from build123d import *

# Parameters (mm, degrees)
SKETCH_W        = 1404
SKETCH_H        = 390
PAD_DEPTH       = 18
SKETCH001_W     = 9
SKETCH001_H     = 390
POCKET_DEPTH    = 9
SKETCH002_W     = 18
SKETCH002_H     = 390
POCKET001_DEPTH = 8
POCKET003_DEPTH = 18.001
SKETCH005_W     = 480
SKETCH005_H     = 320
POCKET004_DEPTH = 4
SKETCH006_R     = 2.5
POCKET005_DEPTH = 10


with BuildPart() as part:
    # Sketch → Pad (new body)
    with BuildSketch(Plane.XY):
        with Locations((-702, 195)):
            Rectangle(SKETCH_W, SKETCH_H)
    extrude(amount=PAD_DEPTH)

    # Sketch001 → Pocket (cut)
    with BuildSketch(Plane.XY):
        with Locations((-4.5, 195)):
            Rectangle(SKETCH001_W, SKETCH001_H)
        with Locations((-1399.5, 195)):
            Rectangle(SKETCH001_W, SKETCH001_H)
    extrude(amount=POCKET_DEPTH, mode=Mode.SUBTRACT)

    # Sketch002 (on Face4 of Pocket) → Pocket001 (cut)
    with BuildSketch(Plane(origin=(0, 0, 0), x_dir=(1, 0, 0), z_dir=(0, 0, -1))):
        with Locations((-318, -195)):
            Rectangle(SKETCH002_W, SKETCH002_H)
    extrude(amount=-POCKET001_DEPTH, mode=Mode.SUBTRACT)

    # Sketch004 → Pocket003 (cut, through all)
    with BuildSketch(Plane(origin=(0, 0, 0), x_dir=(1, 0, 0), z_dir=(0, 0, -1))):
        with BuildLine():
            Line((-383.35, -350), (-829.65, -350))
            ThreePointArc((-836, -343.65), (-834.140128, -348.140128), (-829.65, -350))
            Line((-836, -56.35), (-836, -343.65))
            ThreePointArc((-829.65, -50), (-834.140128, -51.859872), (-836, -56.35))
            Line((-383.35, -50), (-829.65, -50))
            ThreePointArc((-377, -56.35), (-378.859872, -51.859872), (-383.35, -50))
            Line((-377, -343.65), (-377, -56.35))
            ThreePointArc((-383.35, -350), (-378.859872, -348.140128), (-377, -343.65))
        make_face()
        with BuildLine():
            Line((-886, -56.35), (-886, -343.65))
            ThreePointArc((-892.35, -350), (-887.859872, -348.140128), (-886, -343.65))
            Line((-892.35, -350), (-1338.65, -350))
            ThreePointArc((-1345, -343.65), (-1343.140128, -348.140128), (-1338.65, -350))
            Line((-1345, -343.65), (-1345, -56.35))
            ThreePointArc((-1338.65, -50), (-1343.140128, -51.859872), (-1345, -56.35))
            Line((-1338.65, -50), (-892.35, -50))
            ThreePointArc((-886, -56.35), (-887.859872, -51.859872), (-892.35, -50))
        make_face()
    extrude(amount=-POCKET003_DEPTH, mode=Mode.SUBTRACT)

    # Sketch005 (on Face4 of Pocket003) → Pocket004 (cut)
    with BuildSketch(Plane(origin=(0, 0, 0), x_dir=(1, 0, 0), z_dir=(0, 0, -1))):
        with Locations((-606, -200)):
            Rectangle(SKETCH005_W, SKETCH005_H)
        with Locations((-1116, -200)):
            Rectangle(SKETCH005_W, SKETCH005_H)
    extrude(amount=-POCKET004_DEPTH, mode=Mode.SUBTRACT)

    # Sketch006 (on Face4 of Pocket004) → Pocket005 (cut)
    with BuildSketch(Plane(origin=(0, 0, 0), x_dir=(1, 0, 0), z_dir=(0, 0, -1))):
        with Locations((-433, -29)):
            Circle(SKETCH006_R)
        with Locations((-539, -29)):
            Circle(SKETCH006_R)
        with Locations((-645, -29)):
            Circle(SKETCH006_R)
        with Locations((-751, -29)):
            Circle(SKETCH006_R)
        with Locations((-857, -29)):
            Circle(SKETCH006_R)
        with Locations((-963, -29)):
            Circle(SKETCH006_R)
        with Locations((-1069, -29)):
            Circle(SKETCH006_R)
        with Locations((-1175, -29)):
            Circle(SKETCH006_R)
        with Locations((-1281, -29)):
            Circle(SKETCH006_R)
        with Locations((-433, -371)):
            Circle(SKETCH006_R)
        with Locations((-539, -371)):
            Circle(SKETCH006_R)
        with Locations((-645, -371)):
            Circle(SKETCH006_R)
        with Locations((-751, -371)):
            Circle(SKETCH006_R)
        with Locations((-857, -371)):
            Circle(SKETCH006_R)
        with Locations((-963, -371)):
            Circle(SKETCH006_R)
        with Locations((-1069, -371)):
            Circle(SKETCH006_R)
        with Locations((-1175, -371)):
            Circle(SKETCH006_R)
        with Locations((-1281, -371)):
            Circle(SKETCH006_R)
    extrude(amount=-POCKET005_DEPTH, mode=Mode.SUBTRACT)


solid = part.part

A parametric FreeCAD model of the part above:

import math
import FreeCAD as App
import Part
import Sketcher

V = App.Vector
Q = App.Units.Quantity


def add_polygon(sketch, points):
    """Adds a closed chain of lines whose ends are joined by coincident constraints."""
    first, n = sketch.GeometryCount, len(points)
    for a, b in zip(points, points[1:] + points[:1]):
        sketch.addGeometry(Part.LineSegment(App.Vector(*a, 0), App.Vector(*b, 0)), False)
    for i in range(n):
        sketch.addConstraint(Sketcher.Constraint("Coincident", first + i, 2, first + (i + 1) % n, 1))

doc = App.newDocument("Part")
params = doc.addObject("Spreadsheet::Sheet", "Params")
for row, (alias, value) in enumerate([
    ("sketch1_width", "1404 mm"),
    ("sketch1_height", "390 mm"),
    ("pad1_length", "18 mm"),
    ("sketch2_width", "9 mm"),
    ("sketch2_height", "390 mm"),
    ("pocket1_length", "9 mm"),
    ("sketch3_width", "18 mm"),
    ("sketch3_height", "390 mm"),
    ("pocket2_length", "8 mm"),
    ("sketch4_radius", "6.35 mm"),
    ("sketch4_width", "446.3 mm"),
    ("sketch4_height", "287.3 mm"),
    ("sketch5_width", "480 mm"),
    ("sketch5_height", "320 mm"),
    ("pocket4_length", "4 mm"),
    ("sketch6_diameter", "5 mm"),
    ("pocket5_length", "10 mm"),
], start=1):
    params.set(f"A{row}", alias)
    params.set(f"B{row}", "=" + value)
    params.setAlias(f"B{row}", alias)

body = doc.addObject("PartDesign::Body", "Body")

sketch1 = doc.addObject("Sketcher::SketchObject", "Sketch")
body.addObject(sketch1)
sketch1.AttachmentSupport = (doc.XY_Plane, [""])
sketch1.MapMode = "FlatFace"
add_polygon(sketch1, [(-1404, 390), (-1404, 0), (0, 0), (0, 390)])
sketch1.addConstraint([
    Sketcher.Constraint("Vertical", 0),
    Sketcher.Constraint("Horizontal", 1),
    Sketcher.Constraint("Vertical", 2),
    Sketcher.Constraint("Horizontal", 3),
    Sketcher.Constraint("Coincident", 1, 2, -1, 1),
    Sketcher.Constraint("DistanceX", 1, 1, 1, 2, Q("1404 mm")),
    Sketcher.Constraint("DistanceY", 0, 2, 0, 1, Q("390 mm")),
])
sketch1.setExpression("Constraints[9]", "Params.sketch1_width")
sketch1.setExpression("Constraints[10]", "Params.sketch1_height")
pad1 = doc.addObject("PartDesign::Pad", "Pad")
body.addObject(pad1)
pad1.Profile = sketch1
pad1.setExpression("Length", "Params.pad1_length")

sketch2 = doc.addObject("Sketcher::SketchObject", "Sketch001")
body.addObject(sketch2)
sketch2.AttachmentSupport = (doc.XY_Plane, [""])
sketch2.MapMode = "FlatFace"
add_polygon(sketch2, [(-9, 390), (-9, 0), (0, 0), (0, 390)])
add_polygon(sketch2, [(-1404, 390), (-1404, 0), (-1395, 0), (-1395, 390)])
sketch2.addConstraint([
    Sketcher.Constraint("Vertical", 0),
    Sketcher.Constraint("Horizontal", 1),
    Sketcher.Constraint("Vertical", 2),
    Sketcher.Constraint("Horizontal", 3),
    Sketcher.Constraint("Vertical", 4),
    Sketcher.Constraint("Horizontal", 5),
    Sketcher.Constraint("Vertical", 6),
    Sketcher.Constraint("Horizontal", 7),
    Sketcher.Constraint("Coincident", 1, 2, -1, 1),
    Sketcher.Constraint("PointOnObject", 4, 2, -1),
    Sketcher.Constraint("Horizontal", 3, 2, 6, 2),
    Sketcher.Constraint("Equal", 3, 5),
    Sketcher.Constraint("DistanceX", 1, 1, 1, 2, Q("9 mm")),
    Sketcher.Constraint("DistanceY", 0, 2, 0, 1, Q("390 mm")),
    Sketcher.Constraint("DistanceX", 4, 2, -1, 1, Q("1404 mm")),
])
sketch2.setExpression("Constraints[20]", "Params.sketch2_width")
sketch2.setExpression("Constraints[21]", "Params.sketch2_height")
pocket1 = doc.addObject("PartDesign::Pocket", "Pocket")
body.addObject(pocket1)
pocket1.Profile = sketch2
pocket1.setExpression("Length", "Params.pocket1_length")
pocket1.Reversed = True

sketch3 = doc.addObject("Sketcher::SketchObject", "Sketch002")
body.addObject(sketch3)
sketch3.AttachmentSupport = (doc.XY_Plane, [""])
sketch3.MapMode = "FlatFace"
add_polygon(sketch3, [(-327, 0), (-327, 390), (-309, 390), (-309, 0)])
sketch3.addConstraint([
    Sketcher.Constraint("Vertical", 0),
    Sketcher.Constraint("Horizontal", 1),
    Sketcher.Constraint("Vertical", 2),
    Sketcher.Constraint("Horizontal", 3),
    Sketcher.Constraint("PointOnObject", 2, 2, -1),
    Sketcher.Constraint("DistanceX", 1, 1, 1, 2, Q("18 mm")),
    Sketcher.Constraint("DistanceY", 0, 1, 0, 2, Q("390 mm")),
    Sketcher.Constraint("DistanceX", 0, 2, -1, 1, Q("327 mm")),
])
sketch3.setExpression("Constraints[9]", "Params.sketch3_width")
sketch3.setExpression("Constraints[10]", "Params.sketch3_height")
pocket2 = doc.addObject("PartDesign::Pocket", "Pocket001")
body.addObject(pocket2)
pocket2.Profile = sketch3
pocket2.setExpression("Length", "Params.pocket2_length")
pocket2.Reversed = True

sketch4 = doc.addObject("Sketcher::SketchObject", "Sketch003")
body.addObject(sketch4)
sketch4.AttachmentSupport = (doc.XY_Plane, [""])
sketch4.MapMode = "FlatFace"
sketch4.addGeometry([
    Part.LineSegment(V(-830, 350, 0), V(-383, 350, 0)),
    Part.ArcOfCircle(Part.Circle(V(-383, 344, 0), V(0, 0, 1), 6), math.radians(0), math.radians(90)),
    Part.LineSegment(V(-377, 344, 0), V(-377, 56, 0)),
    Part.ArcOfCircle(Part.Circle(V(-383, 56, 0), V(0, 0, 1), 6), math.radians(-90), math.radians(0)),
    Part.LineSegment(V(-383, 50, 0), V(-830, 50, 0)),
    Part.ArcOfCircle(Part.Circle(V(-830, 56, 0), V(0, 0, 1), 6), math.radians(-180), math.radians(-90)),
    Part.LineSegment(V(-836, 56, 0), V(-836, 344, 0)),
    Part.ArcOfCircle(Part.Circle(V(-830, 344, 0), V(0, 0, 1), 6), math.radians(90), math.radians(180)),
    Part.LineSegment(V(-886, 344, 0), V(-886, 56, 0)),
    Part.ArcOfCircle(Part.Circle(V(-892, 56, 0), V(0, 0, 1), 6), math.radians(-90), math.radians(0)),
    Part.LineSegment(V(-892, 50, 0), V(-1339, 50, 0)),
    Part.ArcOfCircle(Part.Circle(V(-1339, 56, 0), V(0, 0, 1), 6), math.radians(-180), math.radians(-90)),
    Part.LineSegment(V(-1345, 56, 0), V(-1345, 344, 0)),
    Part.ArcOfCircle(Part.Circle(V(-1339, 344, 0), V(0, 0, 1), 6), math.radians(90), math.radians(180)),
    Part.LineSegment(V(-1339, 350, 0), V(-892, 350, 0)),
    Part.ArcOfCircle(Part.Circle(V(-892, 344, 0), V(0, 0, 1), 6), math.radians(0), math.radians(90)),
], False)
sketch4.addConstraint([
    Sketcher.Constraint("Tangent", 0, 2, 1, 2),
    Sketcher.Constraint("Tangent", 1, 1, 2, 1),
    Sketcher.Constraint("Tangent", 2, 2, 3, 2),
    Sketcher.Constraint("Tangent", 3, 1, 4, 1),
    Sketcher.Constraint("Tangent", 4, 2, 5, 2),
    Sketcher.Constraint("Tangent", 5, 1, 6, 1),
    Sketcher.Constraint("Tangent", 6, 2, 7, 2),
    Sketcher.Constraint("Tangent", 7, 1, 0, 1),
    Sketcher.Constraint("Tangent", 8, 2, 9, 2),
    Sketcher.Constraint("Tangent", 9, 1, 10, 1),
    Sketcher.Constraint("Tangent", 10, 2, 11, 2),
    Sketcher.Constraint("Tangent", 11, 1, 12, 1),
    Sketcher.Constraint("Tangent", 12, 2, 13, 2),
    Sketcher.Constraint("Tangent", 13, 1, 14, 1),
    Sketcher.Constraint("Tangent", 14, 2, 15, 2),
    Sketcher.Constraint("Tangent", 15, 1, 8, 1),
    Sketcher.Constraint("Horizontal", 0),
    Sketcher.Constraint("Vertical", 2),
    Sketcher.Constraint("Horizontal", 4),
    Sketcher.Constraint("Vertical", 6),
    Sketcher.Constraint("Vertical", 8),
    Sketcher.Constraint("Horizontal", 10),
    Sketcher.Constraint("Vertical", 12),
    Sketcher.Constraint("Horizontal", 14),
    Sketcher.Constraint("Equal", 1, 3),
    Sketcher.Constraint("Equal", 3, 5),
    Sketcher.Constraint("Equal", 5, 7),
    Sketcher.Constraint("Equal", 7, 9),
    Sketcher.Constraint("Equal", 9, 11),
    Sketcher.Constraint("Equal", 11, 13),
    Sketcher.Constraint("Equal", 13, 15),
    Sketcher.Constraint("Horizontal", 5, 3, 9, 3),
    Sketcher.Constraint("Horizontal", 7, 3, 13, 3),
    Sketcher.Constraint("Equal", 4, 10),
    Sketcher.Constraint("Radius", 1, Q("6.35 mm")),
    Sketcher.Constraint("DistanceX", 0, 1, 0, 2, Q("446.3 mm")),
    Sketcher.Constraint("DistanceY", 2, 2, 2, 1, Q("287.3 mm")),
    Sketcher.Constraint("DistanceY", -1, 1, 0, 2, Q("350 mm")),
    Sketcher.Constraint("DistanceX", 1, 1, -1, 1, Q("377 mm")),
    Sketcher.Constraint("DistanceX", 8, 2, -1, 1, Q("886 mm")),
])
sketch4.setExpression("Constraints[34]", "Params.sketch4_radius")
sketch4.setExpression("Constraints[35]", "Params.sketch4_width")
sketch4.setExpression("Constraints[36]", "Params.sketch4_height")
pocket3 = doc.addObject("PartDesign::Pocket", "Pocket002")
body.addObject(pocket3)
pocket3.Profile = sketch4
pocket3.Type = "ThroughAll"
pocket3.Reversed = True

sketch5 = doc.addObject("Sketcher::SketchObject", "Sketch004")
body.addObject(sketch5)
sketch5.AttachmentSupport = (doc.XY_Plane, [""])
sketch5.MapMode = "FlatFace"
add_polygon(sketch5, [(-846, 40), (-846, 360), (-366, 360), (-366, 40)])
add_polygon(sketch5, [(-1356, 40), (-1356, 360), (-876, 360), (-876, 40)])
sketch5.addConstraint([
    Sketcher.Constraint("Vertical", 0),
    Sketcher.Constraint("Horizontal", 1),
    Sketcher.Constraint("Vertical", 2),
    Sketcher.Constraint("Horizontal", 3),
    Sketcher.Constraint("Vertical", 4),
    Sketcher.Constraint("Horizontal", 5),
    Sketcher.Constraint("Vertical", 6),
    Sketcher.Constraint("Horizontal", 7),
    Sketcher.Constraint("Horizontal", 1, 2, 4, 2),
    Sketcher.Constraint("Horizontal", 3, 2, 6, 2),
    Sketcher.Constraint("Equal", 3, 5),
    Sketcher.Constraint("DistanceX", 1, 1, 1, 2, Q("480 mm")),
    Sketcher.Constraint("DistanceY", 0, 1, 0, 2, Q("320 mm")),
    Sketcher.Constraint("DistanceX", 0, 2, -1, 1, Q("846 mm")),
    Sketcher.Constraint("DistanceY", -1, 1, 0, 2, Q("360 mm")),
    Sketcher.Constraint("DistanceX", 4, 2, -1, 1, Q("1356 mm")),
])
sketch5.setExpression("Constraints[19]", "Params.sketch5_width")
sketch5.setExpression("Constraints[20]", "Params.sketch5_height")
pocket4 = doc.addObject("PartDesign::Pocket", "Pocket003")
body.addObject(pocket4)
pocket4.Profile = sketch5
pocket4.setExpression("Length", "Params.pocket4_length")
pocket4.Reversed = True

sketch6 = doc.addObject("Sketcher::SketchObject", "Sketch005")
body.addObject(sketch6)
sketch6.AttachmentSupport = (doc.XY_Plane, [""])
sketch6.MapMode = "FlatFace"
sketch6.addGeometry([
    Part.Circle(V(-433, 29, 0), V(0, 0, 1), 2.5),
    Part.Circle(V(-539, 29, 0), V(0, 0, 1), 2.5),
    Part.Circle(V(-645, 29, 0), V(0, 0, 1), 2.5),
    Part.Circle(V(-751, 29, 0), V(0, 0, 1), 2.5),
    Part.Circle(V(-857, 29, 0), V(0, 0, 1), 2.5),
    Part.Circle(V(-963, 29, 0), V(0, 0, 1), 2.5),
    Part.Circle(V(-1069, 29, 0), V(0, 0, 1), 2.5),
    Part.Circle(V(-1175, 29, 0), V(0, 0, 1), 2.5),
    Part.Circle(V(-1281, 29, 0), V(0, 0, 1), 2.5),
    Part.Circle(V(-433, 371, 0), V(0, 0, 1), 2.5),
    Part.Circle(V(-539, 371, 0), V(0, 0, 1), 2.5),
    Part.Circle(V(-645, 371, 0), V(0, 0, 1), 2.5),
    Part.Circle(V(-751, 371, 0), V(0, 0, 1), 2.5),
    Part.Circle(V(-857, 371, 0), V(0, 0, 1), 2.5),
    Part.Circle(V(-963, 371, 0), V(0, 0, 1), 2.5),
    Part.Circle(V(-1069, 371, 0), V(0, 0, 1), 2.5),
    Part.Circle(V(-1175, 371, 0), V(0, 0, 1), 2.5),
    Part.Circle(V(-1281, 371, 0), V(0, 0, 1), 2.5),
], False)
sketch6.addConstraint([
    Sketcher.Constraint("Equal", 0, 1),
    Sketcher.Constraint("Equal", 1, 2),
    Sketcher.Constraint("Equal", 2, 3),
    Sketcher.Constraint("Equal", 3, 4),
    Sketcher.Constraint("Equal", 4, 5),
    Sketcher.Constraint("Equal", 5, 6),
    Sketcher.Constraint("Equal", 6, 7),
    Sketcher.Constraint("Equal", 7, 8),
    Sketcher.Constraint("Equal", 8, 9),
    Sketcher.Constraint("Equal", 9, 10),
    Sketcher.Constraint("Equal", 10, 11),
    Sketcher.Constraint("Equal", 11, 12),
    Sketcher.Constraint("Equal", 12, 13),
    Sketcher.Constraint("Equal", 13, 14),
    Sketcher.Constraint("Equal", 14, 15),
    Sketcher.Constraint("Equal", 15, 16),
    Sketcher.Constraint("Equal", 16, 17),
    Sketcher.Constraint("Horizontal", 0, 3, 1, 3),
    Sketcher.Constraint("Horizontal", 1, 3, 2, 3),
    Sketcher.Constraint("Horizontal", 2, 3, 3, 3),
    Sketcher.Constraint("Horizontal", 3, 3, 4, 3),
    Sketcher.Constraint("Horizontal", 4, 3, 5, 3),
    Sketcher.Constraint("Horizontal", 5, 3, 6, 3),
    Sketcher.Constraint("Horizontal", 6, 3, 7, 3),
    Sketcher.Constraint("Horizontal", 7, 3, 8, 3),
    Sketcher.Constraint("Horizontal", 9, 3, 10, 3),
    Sketcher.Constraint("Horizontal", 10, 3, 11, 3),
    Sketcher.Constraint("Horizontal", 11, 3, 12, 3),
    Sketcher.Constraint("Horizontal", 12, 3, 13, 3),
    Sketcher.Constraint("Horizontal", 13, 3, 14, 3),
    Sketcher.Constraint("Horizontal", 14, 3, 15, 3),
    Sketcher.Constraint("Horizontal", 15, 3, 16, 3),
    Sketcher.Constraint("Horizontal", 16, 3, 17, 3),
    Sketcher.Constraint("Vertical", 0, 3, 9, 3),
    Sketcher.Constraint("Vertical", 1, 3, 10, 3),
    Sketcher.Constraint("Vertical", 2, 3, 11, 3),
    Sketcher.Constraint("Vertical", 3, 3, 12, 3),
    Sketcher.Constraint("Vertical", 4, 3, 13, 3),
    Sketcher.Constraint("Vertical", 5, 3, 14, 3),
    Sketcher.Constraint("Vertical", 6, 3, 15, 3),
    Sketcher.Constraint("Vertical", 7, 3, 16, 3),
    Sketcher.Constraint("Vertical", 8, 3, 17, 3),
    Sketcher.Constraint("Diameter", 0, Q("5 mm")),
    Sketcher.Constraint("DistanceX", 0, 3, -1, 1, Q("433 mm")),
    Sketcher.Constraint("DistanceY", -1, 1, 0, 3, Q("29 mm")),
    Sketcher.Constraint("DistanceX", 1, 3, -1, 1, Q("539 mm")),
    Sketcher.Constraint("DistanceX", 2, 3, -1, 1, Q("645 mm")),
    Sketcher.Constraint("DistanceX", 3, 3, -1, 1, Q("751 mm")),
    Sketcher.Constraint("DistanceX", 4, 3, -1, 1, Q("857 mm")),
    Sketcher.Constraint("DistanceX", 5, 3, -1, 1, Q("963 mm")),
    Sketcher.Constraint("DistanceX", 6, 3, -1, 1, Q("1069 mm")),
    Sketcher.Constraint("DistanceX", 7, 3, -1, 1, Q("1175 mm")),
    Sketcher.Constraint("DistanceX", 8, 3, -1, 1, Q("1281 mm")),
    Sketcher.Constraint("DistanceY", -1, 1, 9, 3, Q("371 mm")),
])
sketch6.setExpression("Constraints[42]", "Params.sketch6_diameter")
pocket5 = doc.addObject("PartDesign::Pocket", "Pocket004")
body.addObject(pocket5)
pocket5.Profile = sketch6
pocket5.setExpression("Length", "Params.pocket5_length")
pocket5.Reversed = True

doc.recompute()
